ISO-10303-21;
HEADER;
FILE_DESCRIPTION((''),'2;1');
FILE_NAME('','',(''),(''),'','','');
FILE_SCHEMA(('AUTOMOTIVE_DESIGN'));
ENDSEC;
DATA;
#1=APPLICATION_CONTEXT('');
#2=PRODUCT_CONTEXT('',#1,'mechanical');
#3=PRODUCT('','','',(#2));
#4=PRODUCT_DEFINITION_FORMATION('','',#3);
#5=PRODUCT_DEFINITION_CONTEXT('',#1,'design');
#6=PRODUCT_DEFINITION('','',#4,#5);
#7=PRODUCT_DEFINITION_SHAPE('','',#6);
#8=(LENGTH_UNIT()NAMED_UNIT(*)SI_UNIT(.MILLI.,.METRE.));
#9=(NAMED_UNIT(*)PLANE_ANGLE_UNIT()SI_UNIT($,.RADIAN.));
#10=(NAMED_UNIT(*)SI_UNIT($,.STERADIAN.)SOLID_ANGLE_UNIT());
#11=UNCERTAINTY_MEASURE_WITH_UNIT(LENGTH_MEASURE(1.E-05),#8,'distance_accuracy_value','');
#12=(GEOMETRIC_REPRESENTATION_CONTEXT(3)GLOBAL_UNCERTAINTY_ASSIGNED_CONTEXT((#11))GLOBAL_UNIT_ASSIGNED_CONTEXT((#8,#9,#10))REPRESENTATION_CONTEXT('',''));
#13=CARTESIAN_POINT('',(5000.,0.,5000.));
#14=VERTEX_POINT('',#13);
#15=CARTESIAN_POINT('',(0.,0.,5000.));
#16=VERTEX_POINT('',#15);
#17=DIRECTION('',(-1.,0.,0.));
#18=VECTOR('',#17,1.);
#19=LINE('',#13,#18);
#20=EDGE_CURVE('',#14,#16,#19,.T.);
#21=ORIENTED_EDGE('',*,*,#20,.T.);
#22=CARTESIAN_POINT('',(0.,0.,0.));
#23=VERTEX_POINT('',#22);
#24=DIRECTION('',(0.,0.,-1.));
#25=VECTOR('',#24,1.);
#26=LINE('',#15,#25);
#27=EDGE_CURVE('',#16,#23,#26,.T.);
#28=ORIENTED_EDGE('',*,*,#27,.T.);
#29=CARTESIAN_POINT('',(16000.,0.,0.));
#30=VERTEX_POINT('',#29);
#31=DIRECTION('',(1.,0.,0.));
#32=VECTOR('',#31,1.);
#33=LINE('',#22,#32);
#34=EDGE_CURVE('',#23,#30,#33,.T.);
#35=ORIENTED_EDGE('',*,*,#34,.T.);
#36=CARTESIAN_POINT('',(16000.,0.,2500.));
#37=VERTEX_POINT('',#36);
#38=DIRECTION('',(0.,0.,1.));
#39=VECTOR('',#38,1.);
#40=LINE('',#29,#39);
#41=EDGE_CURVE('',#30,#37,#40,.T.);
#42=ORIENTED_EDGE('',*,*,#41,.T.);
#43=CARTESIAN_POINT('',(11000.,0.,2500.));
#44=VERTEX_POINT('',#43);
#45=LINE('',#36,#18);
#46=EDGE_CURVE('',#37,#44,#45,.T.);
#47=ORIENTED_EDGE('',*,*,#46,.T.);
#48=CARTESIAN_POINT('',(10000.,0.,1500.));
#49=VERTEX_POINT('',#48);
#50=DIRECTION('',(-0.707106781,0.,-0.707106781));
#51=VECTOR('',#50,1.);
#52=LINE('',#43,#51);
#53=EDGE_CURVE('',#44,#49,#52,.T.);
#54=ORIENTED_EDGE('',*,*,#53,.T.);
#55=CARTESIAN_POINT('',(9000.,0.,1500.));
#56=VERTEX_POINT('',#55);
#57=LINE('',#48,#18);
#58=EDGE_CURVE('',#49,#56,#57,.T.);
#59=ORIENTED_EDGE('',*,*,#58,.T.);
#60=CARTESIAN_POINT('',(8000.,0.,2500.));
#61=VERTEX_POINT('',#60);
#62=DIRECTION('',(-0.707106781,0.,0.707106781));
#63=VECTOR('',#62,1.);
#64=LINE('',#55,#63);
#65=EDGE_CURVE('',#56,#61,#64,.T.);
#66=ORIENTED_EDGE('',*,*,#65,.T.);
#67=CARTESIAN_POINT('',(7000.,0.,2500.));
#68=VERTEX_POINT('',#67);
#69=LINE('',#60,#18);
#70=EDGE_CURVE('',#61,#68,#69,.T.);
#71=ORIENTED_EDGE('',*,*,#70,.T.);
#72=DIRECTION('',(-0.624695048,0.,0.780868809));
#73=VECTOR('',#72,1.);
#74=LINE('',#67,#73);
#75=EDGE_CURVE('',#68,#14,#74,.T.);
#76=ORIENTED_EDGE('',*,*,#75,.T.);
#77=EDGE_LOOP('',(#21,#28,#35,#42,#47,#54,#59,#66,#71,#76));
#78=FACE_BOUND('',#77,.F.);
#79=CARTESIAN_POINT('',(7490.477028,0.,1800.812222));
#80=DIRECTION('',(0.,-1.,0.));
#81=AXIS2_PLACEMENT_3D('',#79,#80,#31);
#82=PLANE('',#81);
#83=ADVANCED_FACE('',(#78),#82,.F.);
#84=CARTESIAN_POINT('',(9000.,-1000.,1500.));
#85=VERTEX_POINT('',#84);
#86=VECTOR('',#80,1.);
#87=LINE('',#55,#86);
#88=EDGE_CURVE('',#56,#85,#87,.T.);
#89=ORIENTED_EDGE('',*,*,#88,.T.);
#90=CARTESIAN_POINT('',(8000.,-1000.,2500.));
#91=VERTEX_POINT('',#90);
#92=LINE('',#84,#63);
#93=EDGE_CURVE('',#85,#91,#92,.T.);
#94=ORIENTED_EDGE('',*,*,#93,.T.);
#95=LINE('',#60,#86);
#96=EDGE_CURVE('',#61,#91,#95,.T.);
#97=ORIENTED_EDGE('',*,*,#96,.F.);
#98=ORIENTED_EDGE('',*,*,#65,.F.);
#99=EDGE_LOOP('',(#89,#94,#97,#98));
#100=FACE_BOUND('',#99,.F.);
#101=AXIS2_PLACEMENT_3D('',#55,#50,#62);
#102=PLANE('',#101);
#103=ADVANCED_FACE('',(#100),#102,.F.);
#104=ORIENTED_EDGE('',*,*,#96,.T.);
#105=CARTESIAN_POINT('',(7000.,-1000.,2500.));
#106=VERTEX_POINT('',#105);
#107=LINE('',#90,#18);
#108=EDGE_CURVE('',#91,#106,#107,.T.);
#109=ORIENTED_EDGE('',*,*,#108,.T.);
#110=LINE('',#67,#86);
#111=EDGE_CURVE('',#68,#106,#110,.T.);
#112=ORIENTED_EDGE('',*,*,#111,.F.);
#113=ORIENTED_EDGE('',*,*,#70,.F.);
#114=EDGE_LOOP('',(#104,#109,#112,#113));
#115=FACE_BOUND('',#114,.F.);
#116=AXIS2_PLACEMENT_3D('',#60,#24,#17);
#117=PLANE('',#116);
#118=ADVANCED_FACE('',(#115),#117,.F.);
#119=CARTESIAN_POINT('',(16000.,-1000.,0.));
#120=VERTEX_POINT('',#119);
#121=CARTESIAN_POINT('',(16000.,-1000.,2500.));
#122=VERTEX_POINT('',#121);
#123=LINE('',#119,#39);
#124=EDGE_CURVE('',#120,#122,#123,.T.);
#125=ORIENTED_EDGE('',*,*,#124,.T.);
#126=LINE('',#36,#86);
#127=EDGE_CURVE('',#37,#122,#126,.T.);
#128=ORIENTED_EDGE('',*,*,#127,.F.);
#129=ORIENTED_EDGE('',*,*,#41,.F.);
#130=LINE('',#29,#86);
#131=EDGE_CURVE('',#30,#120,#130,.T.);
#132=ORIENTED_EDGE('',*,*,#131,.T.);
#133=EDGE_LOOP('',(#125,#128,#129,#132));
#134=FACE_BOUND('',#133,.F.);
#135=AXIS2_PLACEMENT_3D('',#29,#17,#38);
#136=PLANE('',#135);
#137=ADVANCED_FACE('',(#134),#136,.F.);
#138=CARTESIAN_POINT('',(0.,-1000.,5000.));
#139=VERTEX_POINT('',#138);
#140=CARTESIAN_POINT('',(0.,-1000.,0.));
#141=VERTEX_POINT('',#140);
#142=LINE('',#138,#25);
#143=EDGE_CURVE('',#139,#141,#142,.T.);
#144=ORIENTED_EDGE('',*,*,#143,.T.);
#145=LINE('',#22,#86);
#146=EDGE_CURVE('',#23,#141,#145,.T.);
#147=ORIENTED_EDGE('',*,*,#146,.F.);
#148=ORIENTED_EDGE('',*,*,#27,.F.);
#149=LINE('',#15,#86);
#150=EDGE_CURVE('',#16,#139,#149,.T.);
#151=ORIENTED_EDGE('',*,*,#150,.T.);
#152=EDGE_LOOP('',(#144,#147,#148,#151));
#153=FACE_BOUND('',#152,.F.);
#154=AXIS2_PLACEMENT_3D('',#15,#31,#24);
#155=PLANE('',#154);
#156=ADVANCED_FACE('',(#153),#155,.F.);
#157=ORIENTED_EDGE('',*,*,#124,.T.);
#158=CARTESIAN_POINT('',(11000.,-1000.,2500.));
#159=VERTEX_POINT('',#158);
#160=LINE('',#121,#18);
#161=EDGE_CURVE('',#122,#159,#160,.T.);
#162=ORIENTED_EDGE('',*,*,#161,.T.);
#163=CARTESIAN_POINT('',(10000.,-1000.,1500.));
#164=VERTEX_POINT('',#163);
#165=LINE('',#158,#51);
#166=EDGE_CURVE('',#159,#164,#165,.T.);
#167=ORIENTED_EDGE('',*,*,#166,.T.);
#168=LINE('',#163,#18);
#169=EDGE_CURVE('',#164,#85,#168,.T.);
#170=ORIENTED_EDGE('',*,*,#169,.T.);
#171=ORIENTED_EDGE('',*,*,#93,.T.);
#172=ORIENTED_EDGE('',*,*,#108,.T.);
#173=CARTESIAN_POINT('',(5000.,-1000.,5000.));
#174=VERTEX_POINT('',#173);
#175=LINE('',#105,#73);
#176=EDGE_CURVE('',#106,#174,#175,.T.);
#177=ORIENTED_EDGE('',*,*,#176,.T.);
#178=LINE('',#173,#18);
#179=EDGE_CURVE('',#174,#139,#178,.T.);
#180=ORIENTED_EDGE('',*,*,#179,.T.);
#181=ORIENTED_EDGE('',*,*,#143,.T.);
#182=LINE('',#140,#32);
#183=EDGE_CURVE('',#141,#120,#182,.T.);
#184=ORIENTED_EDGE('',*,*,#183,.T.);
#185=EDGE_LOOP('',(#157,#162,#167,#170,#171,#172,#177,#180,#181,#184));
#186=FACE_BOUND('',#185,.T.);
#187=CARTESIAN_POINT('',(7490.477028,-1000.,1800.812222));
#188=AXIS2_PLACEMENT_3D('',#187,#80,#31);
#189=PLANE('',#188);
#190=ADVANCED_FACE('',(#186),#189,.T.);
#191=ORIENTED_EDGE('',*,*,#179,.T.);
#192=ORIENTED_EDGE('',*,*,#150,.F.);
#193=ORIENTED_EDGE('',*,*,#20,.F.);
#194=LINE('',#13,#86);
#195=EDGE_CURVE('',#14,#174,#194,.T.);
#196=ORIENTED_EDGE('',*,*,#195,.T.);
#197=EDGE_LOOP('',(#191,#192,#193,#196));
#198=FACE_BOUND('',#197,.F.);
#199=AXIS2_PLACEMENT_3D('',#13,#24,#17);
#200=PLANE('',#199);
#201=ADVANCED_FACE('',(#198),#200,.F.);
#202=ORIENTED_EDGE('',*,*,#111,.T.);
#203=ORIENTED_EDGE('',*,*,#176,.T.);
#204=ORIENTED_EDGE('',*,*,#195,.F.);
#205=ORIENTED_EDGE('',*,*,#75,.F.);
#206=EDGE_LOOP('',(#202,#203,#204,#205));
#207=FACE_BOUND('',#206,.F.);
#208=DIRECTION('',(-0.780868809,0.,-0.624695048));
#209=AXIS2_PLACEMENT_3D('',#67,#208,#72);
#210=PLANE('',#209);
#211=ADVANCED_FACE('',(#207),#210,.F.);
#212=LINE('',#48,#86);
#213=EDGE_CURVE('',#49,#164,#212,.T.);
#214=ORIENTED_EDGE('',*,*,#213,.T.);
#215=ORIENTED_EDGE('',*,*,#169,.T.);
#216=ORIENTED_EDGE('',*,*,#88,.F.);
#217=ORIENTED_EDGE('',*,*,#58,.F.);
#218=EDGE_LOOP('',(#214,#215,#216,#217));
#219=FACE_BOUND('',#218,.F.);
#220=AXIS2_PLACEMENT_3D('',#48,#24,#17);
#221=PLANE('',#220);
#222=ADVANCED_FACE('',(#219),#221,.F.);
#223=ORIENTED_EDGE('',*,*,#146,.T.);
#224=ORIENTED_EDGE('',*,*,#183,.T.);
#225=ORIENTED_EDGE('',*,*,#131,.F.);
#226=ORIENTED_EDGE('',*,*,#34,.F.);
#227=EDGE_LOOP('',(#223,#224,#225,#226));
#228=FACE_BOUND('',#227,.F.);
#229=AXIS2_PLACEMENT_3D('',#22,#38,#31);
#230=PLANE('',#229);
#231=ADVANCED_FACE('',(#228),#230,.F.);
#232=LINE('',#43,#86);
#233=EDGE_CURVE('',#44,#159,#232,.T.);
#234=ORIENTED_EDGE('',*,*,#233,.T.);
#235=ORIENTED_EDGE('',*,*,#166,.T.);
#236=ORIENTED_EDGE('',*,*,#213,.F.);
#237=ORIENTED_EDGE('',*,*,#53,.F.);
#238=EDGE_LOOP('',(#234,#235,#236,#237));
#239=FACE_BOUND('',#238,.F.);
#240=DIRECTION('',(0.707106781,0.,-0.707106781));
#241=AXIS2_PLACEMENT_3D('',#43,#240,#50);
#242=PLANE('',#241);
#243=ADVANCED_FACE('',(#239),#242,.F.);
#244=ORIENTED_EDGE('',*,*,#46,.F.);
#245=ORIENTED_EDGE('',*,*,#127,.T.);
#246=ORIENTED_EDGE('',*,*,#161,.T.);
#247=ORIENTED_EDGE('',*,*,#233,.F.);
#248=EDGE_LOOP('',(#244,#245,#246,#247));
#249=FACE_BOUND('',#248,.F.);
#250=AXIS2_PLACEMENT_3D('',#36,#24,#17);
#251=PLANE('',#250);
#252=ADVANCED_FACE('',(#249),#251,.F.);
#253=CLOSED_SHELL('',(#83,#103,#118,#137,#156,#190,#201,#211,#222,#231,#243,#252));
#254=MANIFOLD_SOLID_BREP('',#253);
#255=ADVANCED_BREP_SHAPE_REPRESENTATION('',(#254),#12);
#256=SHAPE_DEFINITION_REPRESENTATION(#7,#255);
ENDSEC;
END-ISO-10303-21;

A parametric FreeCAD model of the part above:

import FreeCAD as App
import Part
import Sketcher
from FreeCAD import Vector
Q = App.Units.Quantity


def add_polygon(sketch, points):
    """Adds a closed chain of lines whose ends are joined by coincident constraints."""
    first, n = sketch.GeometryCount, len(points)
    for a, b in zip(points, points[1:] + points[:1]):
        sketch.addGeometry(Part.LineSegment(App.Vector(*a, 0), App.Vector(*b, 0)), False)
    for i in range(n):
        sketch.addConstraint(Sketcher.Constraint("Coincident", first + i, 2, first + (i + 1) % n, 1))

doc = App.newDocument("Part")
body = doc.addObject("PartDesign::Body", "Body")

# Sketch on XZ plane
sketch1 = body.newObject("Sketcher::SketchObject", "Sketch")
sketch1.AttachmentSupport = (doc.getObject("XZ_Plane"), [""])
sketch1.MapMode = "FlatFace"
add_polygon(sketch1, [(0, 0), (16000, 0), (16000, 2500), (11000, 2500), (10000, 1500), (9000, 1500), (8000, 2500), (7000, 2500), (5000, 5000), (0, 5000)])  # lines 0-9
sketch1.addConstraint(Sketcher.Constraint("Horizontal", 0))
sketch1.addConstraint(Sketcher.Constraint("Vertical", 1))
sketch1.addConstraint(Sketcher.Constraint("Horizontal", 2))
sketch1.addConstraint(Sketcher.Constraint("Horizontal", 4))
sketch1.addConstraint(Sketcher.Constraint("Horizontal", 6))
sketch1.addConstraint(Sketcher.Constraint("Horizontal", 8))
sketch1.addConstraint(Sketcher.Constraint("Vertical", 9))
sketch1.addConstraint(Sketcher.Constraint("Coincident", 9, 2, -1, 1))
sketch1.addConstraint(Sketcher.Constraint("Perpendicular", 3, 5))
sketch1.addConstraint(Sketcher.Constraint("Horizontal", 2, 2, 5, 2))
sketch1.addConstraint(Sketcher.Constraint("Equal", 4, 6))
sketch1.addConstraint(Sketcher.Constraint("Equal", 2, 8))
sketch1.addConstraint(Sketcher.Constraint("Equal", 8, 9))
sketch1.addConstraint(Sketcher.Constraint("Equal", 3, 5))
sketch1.addConstraint(Sketcher.Constraint("DistanceX", 0, 1, 0, 2, Q("16000 mm")))
sketch1.addConstraint(Sketcher.Constraint("DistanceX", 2, 2, 2, 1, Q("5000 mm")))
sketch1.addConstraint(Sketcher.Constraint("DistanceX", 4, 2, 4, 1, Q("1000 mm")))
sketch1.addConstraint(Sketcher.Constraint("DistanceY", 1, 1, 1, 2, Q("2500 mm")))
sketch1.addConstraint(Sketcher.Constraint("DistanceX", -1, 1, 3, 2, Q("10000 mm")))
pad1 = body.newObject("PartDesign::Pad", "Pad")
pad1.Profile = sketch1
pad1.Length = 1000

doc.recompute()
